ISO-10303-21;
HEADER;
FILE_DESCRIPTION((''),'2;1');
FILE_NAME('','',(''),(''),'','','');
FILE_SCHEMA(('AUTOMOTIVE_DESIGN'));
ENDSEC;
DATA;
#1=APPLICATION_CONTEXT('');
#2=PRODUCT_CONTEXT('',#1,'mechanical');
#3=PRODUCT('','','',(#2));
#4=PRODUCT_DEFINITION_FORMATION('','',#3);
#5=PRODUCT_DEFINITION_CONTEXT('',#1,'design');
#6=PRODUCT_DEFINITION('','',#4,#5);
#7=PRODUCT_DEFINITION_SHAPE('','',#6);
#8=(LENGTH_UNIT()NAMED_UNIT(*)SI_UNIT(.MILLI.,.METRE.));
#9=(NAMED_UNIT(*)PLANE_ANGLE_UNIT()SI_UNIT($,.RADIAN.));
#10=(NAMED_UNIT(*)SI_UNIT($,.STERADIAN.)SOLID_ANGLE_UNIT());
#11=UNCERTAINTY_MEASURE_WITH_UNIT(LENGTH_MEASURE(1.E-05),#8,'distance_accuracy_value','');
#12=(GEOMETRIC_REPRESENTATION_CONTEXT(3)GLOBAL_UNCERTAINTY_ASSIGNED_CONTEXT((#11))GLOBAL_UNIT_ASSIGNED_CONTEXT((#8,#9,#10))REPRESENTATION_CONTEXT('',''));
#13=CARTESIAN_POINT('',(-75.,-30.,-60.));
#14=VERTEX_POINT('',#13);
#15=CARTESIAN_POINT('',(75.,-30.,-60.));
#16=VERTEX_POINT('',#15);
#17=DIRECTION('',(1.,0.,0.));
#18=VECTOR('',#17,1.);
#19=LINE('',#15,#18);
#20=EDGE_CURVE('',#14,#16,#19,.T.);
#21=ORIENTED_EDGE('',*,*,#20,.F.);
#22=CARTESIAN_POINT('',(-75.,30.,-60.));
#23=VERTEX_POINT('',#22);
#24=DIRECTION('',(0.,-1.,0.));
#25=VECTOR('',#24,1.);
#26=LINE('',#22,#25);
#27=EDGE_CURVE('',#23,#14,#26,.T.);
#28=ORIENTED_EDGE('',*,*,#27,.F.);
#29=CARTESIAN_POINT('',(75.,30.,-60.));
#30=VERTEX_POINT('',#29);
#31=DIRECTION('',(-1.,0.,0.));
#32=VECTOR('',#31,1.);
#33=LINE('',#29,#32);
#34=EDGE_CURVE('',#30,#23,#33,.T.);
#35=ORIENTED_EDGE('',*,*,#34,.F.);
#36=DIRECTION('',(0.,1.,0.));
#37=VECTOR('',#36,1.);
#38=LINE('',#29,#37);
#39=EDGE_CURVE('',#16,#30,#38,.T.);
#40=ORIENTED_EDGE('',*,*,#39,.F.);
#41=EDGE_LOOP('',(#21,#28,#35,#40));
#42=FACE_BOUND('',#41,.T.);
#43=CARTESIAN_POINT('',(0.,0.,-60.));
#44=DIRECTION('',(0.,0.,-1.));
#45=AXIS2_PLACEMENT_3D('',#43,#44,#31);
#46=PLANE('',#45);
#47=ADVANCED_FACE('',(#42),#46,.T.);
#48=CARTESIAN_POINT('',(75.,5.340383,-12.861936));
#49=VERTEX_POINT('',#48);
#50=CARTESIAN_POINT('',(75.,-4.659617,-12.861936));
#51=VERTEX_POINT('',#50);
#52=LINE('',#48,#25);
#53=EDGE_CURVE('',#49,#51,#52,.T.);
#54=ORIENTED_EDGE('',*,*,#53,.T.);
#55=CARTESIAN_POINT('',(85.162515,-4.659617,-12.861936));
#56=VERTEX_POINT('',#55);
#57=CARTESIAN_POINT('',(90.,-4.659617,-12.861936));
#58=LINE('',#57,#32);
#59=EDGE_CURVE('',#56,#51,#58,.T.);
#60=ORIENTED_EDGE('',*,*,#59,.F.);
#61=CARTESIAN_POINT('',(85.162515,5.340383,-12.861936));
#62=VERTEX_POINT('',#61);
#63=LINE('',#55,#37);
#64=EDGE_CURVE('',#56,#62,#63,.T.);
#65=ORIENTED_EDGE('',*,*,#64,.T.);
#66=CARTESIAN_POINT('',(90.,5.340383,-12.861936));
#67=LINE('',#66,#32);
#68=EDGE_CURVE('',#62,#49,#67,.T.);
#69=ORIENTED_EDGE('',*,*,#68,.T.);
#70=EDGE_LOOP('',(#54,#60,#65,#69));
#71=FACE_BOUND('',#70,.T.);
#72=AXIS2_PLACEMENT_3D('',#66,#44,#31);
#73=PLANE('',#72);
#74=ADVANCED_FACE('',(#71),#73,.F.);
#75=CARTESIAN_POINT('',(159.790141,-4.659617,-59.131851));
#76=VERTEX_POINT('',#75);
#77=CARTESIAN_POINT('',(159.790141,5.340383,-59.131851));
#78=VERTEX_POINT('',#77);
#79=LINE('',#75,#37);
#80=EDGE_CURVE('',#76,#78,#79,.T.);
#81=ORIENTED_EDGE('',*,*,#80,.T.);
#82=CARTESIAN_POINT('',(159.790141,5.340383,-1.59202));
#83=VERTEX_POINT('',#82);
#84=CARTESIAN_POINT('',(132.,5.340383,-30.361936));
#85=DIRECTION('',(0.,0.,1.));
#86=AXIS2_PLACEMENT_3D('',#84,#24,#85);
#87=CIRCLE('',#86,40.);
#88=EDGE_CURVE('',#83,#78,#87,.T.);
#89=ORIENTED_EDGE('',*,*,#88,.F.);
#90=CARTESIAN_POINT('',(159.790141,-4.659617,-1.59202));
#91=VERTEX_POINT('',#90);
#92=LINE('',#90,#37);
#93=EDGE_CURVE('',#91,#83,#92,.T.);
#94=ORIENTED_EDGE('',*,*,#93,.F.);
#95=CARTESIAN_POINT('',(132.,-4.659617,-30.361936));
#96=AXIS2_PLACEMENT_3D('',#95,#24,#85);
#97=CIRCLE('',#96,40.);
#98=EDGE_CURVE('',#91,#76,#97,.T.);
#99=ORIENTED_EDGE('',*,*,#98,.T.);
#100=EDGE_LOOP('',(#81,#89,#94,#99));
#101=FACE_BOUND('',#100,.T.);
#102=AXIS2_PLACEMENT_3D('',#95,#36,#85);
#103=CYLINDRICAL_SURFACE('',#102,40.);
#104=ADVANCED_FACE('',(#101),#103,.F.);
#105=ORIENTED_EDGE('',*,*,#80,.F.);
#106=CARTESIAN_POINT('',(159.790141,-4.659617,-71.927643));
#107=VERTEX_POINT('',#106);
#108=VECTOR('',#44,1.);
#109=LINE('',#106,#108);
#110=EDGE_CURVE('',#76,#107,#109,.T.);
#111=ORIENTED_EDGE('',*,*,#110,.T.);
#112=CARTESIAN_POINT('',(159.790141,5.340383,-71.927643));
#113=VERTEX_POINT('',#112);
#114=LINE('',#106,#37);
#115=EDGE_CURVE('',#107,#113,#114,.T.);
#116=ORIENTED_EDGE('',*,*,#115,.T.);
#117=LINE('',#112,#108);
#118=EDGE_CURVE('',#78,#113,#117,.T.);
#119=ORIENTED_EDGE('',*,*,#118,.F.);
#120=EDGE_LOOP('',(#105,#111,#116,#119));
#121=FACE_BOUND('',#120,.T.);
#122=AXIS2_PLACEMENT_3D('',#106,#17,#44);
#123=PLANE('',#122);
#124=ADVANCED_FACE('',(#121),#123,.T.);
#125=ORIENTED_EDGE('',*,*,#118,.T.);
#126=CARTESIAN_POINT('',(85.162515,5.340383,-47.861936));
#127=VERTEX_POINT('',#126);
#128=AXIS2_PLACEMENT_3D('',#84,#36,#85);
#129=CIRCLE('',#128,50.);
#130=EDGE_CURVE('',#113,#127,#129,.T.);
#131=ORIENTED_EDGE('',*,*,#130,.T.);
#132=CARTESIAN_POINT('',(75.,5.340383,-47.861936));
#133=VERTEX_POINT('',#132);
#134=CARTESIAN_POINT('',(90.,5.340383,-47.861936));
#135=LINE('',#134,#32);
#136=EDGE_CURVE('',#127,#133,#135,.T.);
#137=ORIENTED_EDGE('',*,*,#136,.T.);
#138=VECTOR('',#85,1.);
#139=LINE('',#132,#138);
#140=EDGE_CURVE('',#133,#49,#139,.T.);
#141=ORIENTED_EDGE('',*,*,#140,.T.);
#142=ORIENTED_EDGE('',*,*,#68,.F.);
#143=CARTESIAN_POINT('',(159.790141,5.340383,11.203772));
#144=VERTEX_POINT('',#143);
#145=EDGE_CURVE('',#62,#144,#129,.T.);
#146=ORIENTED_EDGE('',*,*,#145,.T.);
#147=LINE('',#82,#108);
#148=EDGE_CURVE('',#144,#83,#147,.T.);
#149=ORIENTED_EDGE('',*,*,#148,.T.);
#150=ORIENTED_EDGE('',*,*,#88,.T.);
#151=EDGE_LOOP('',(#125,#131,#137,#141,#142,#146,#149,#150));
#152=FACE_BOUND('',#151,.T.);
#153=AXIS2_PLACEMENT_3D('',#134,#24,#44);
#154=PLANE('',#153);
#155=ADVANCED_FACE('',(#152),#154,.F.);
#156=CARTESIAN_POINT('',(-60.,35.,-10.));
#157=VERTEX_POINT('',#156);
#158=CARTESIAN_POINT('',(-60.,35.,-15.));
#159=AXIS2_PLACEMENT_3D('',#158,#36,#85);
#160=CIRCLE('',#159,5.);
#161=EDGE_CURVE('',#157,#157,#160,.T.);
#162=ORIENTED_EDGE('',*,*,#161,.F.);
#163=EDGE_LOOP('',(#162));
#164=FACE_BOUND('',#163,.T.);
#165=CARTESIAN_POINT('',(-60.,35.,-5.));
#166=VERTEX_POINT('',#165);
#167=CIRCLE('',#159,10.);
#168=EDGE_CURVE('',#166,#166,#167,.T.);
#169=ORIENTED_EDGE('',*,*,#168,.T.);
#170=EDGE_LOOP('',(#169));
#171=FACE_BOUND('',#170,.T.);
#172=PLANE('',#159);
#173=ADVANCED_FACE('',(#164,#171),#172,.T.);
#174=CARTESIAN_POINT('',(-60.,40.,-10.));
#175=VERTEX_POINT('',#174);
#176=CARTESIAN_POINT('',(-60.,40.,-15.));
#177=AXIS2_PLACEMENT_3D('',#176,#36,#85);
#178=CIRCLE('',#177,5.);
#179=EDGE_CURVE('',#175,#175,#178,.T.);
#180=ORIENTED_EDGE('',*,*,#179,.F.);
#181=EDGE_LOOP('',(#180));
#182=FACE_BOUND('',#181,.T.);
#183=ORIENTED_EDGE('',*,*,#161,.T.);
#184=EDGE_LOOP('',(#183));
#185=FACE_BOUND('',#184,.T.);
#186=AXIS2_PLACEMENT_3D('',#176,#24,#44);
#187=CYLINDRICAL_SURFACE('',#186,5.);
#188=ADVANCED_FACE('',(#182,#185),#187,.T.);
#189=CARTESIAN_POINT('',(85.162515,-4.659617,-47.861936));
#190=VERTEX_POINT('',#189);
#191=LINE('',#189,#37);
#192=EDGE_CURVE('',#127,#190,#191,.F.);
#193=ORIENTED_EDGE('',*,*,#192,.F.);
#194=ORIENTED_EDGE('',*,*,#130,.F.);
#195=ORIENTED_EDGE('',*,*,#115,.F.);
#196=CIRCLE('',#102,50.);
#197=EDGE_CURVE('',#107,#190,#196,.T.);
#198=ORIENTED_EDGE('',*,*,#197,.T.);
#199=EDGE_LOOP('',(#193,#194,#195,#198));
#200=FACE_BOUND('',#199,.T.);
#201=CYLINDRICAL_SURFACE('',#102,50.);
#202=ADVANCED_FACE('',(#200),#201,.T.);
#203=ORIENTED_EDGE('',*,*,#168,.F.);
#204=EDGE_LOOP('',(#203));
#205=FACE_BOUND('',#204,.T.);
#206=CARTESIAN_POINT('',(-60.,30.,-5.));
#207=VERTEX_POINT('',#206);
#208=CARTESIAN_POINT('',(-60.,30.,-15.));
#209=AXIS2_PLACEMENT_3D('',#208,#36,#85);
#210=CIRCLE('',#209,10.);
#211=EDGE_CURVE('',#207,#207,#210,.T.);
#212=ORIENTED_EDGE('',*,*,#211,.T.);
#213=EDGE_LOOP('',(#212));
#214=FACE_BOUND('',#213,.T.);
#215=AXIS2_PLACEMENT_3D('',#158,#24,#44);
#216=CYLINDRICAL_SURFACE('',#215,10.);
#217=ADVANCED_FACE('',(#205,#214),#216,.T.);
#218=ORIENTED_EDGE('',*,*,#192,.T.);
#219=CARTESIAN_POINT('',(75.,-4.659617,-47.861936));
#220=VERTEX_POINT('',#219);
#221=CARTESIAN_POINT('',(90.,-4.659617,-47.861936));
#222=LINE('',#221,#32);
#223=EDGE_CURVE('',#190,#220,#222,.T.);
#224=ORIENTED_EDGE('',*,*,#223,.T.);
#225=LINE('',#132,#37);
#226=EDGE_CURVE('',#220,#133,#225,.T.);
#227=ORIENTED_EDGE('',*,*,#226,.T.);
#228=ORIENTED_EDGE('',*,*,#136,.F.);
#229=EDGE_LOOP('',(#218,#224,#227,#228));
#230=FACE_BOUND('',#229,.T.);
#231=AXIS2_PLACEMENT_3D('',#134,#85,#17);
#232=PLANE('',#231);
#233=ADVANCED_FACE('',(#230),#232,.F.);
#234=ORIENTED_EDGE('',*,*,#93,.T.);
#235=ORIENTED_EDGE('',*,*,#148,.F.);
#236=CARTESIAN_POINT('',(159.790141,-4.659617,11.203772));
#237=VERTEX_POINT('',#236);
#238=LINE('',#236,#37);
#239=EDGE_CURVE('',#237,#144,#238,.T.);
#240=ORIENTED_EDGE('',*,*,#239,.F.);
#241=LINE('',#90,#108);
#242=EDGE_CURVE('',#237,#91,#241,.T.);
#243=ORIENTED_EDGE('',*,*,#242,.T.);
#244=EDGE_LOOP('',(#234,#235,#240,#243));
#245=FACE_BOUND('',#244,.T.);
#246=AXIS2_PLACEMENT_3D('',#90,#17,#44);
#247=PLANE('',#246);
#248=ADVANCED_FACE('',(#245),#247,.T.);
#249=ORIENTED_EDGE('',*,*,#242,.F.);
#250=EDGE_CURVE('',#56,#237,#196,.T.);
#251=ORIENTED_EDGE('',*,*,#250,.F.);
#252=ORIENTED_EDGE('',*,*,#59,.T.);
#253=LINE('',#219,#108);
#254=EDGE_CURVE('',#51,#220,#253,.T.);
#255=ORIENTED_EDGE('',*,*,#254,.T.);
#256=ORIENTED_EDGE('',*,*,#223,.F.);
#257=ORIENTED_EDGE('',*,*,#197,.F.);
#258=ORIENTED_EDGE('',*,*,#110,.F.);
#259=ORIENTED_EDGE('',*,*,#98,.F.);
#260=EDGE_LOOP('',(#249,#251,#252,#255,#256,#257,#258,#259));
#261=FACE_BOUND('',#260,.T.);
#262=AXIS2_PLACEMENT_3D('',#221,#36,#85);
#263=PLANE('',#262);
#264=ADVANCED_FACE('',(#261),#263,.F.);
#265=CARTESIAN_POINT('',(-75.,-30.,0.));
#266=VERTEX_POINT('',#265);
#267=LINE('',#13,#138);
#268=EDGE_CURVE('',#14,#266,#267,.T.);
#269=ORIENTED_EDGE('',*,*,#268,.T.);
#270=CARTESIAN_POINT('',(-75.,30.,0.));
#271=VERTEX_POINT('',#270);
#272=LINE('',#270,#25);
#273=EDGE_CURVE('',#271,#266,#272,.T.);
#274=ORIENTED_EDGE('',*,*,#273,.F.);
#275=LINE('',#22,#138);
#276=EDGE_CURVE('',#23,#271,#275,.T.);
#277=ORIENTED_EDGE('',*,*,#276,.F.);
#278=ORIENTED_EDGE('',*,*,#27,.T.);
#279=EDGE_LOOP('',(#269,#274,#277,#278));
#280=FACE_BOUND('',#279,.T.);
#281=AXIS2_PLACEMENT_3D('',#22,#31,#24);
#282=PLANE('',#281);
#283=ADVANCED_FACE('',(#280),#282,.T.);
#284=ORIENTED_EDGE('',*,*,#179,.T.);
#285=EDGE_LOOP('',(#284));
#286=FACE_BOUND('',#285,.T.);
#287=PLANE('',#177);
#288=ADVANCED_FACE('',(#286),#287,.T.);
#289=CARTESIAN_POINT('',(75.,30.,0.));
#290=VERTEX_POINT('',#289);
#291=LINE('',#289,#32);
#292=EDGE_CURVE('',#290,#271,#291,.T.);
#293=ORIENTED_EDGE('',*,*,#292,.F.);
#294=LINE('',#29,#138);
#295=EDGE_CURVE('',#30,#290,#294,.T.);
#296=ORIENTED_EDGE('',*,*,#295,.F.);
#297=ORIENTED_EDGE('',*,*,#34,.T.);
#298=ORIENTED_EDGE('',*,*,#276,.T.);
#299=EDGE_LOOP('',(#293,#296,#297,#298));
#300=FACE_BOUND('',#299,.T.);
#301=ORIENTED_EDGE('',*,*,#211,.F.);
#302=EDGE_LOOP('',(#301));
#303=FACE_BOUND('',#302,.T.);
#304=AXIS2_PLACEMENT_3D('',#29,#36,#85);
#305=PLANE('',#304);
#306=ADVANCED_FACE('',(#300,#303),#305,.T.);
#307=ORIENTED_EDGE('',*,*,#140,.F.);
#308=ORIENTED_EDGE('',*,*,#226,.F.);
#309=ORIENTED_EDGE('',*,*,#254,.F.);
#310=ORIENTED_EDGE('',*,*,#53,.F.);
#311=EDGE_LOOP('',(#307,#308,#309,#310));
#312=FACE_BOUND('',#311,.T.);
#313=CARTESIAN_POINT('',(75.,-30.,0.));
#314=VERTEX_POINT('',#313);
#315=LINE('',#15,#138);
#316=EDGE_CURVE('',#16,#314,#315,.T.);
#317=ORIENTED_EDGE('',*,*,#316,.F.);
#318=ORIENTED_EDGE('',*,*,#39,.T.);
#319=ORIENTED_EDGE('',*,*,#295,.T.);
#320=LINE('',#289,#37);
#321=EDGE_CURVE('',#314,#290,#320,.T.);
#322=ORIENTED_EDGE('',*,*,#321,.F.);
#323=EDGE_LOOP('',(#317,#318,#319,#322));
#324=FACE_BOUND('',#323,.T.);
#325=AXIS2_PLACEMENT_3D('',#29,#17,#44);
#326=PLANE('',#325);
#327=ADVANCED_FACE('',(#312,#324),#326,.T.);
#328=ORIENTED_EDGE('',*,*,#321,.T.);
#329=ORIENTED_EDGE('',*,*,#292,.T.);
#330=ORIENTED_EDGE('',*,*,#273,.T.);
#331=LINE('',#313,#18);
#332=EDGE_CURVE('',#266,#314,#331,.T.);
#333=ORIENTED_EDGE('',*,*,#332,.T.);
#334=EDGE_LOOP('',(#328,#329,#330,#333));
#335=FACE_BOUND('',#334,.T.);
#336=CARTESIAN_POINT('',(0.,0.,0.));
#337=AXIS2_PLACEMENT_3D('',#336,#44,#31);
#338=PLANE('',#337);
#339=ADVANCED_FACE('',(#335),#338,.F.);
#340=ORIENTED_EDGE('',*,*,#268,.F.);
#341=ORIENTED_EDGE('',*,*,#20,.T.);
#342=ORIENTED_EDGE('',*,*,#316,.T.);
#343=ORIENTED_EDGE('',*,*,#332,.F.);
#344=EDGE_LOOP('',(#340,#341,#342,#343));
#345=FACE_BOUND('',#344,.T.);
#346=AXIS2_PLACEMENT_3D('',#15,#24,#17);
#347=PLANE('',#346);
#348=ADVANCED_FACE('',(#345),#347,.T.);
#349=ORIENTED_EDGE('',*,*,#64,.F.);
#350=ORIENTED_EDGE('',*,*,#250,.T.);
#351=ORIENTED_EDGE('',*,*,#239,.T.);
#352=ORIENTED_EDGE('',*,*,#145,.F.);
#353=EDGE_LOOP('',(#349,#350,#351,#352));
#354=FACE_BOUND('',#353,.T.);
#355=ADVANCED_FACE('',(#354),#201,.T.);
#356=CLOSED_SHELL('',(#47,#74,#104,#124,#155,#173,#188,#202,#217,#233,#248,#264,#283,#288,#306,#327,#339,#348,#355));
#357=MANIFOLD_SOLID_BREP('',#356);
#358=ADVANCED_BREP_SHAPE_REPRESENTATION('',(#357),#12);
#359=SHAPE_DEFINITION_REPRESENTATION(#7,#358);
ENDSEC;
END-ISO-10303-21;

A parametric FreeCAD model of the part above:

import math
import FreeCAD as App
import Part
import Sketcher
Q = App.Units.Quantity

doc = App.newDocument("Part")
body = doc.addObject("PartDesign::Body", "Body")

sketch1 = body.newObject("Sketcher::SketchObject", "Sketch")
sketch1.AttachmentSupport = (doc.getObject("XY_Plane"), [""])
sketch1.MapMode = "FlatFace"
sketch1.addGeometry([
    Part.LineSegment(App.Vector(-75, 30, 0), App.Vector(-75, -30, 0)),
    Part.LineSegment(App.Vector(-75, -30, 0), App.Vector(75, -30, 0)),
    Part.LineSegment(App.Vector(75, -30, 0), App.Vector(75, 30, 0)),
    Part.LineSegment(App.Vector(75, 30, 0), App.Vector(-75, 30, 0)),
], False)
sketch1.addConstraint([
    Sketcher.Constraint("Coincident", 0, 2, 1, 1),
    Sketcher.Constraint("Coincident", 1, 2, 2, 1),
    Sketcher.Constraint("Coincident", 2, 2, 3, 1),
    Sketcher.Constraint("Coincident", 3, 2, 0, 1),
    Sketcher.Constraint("Vertical", 0),
    Sketcher.Constraint("Horizontal", 1),
    Sketcher.Constraint("Vertical", 2),
    Sketcher.Constraint("Horizontal", 3),
    Sketcher.Constraint("Symmetric", 0, 2, 2, 2, -1, 1),
    Sketcher.Constraint("DistanceX", 1, 1, 1, 2, Q("150 mm")),
    Sketcher.Constraint("DistanceY", 0, 2, 0, 1, Q("60 mm")),
])
pad1 = body.newObject("PartDesign::Pad", "Pad")
pad1.Profile = sketch1
pad1.Length = 60
pad1.Reversed = True

sketch2 = body.newObject("Sketcher::SketchObject", "Sketch001")
sketch2.AttachmentSupport = (doc.getObject("XZ_Plane"), [""])
sketch2.MapMode = "FlatFace"
sketch2.AttachmentOffset = App.Placement(App.Vector(0, 0, -30), App.Rotation())
sketch2.addGeometry(Part.Circle(App.Vector(-60, -15, 0), App.Vector(0, 0, 1), 10), False)
sketch2.addConstraint([
    Sketcher.Constraint("Diameter", 0, Q("20 mm")),
    Sketcher.Constraint("DistanceX", 0, 3, -1, 1, Q("60 mm")),
    Sketcher.Constraint("DistanceY", 0, 3, -1, 1, Q("15 mm")),
])
pad2 = body.newObject("PartDesign::Pad", "Pad001")
pad2.Profile = sketch2
pad2.Length = 5
pad2.Reversed = True

sketch3 = body.newObject("Sketcher::SketchObject", "Sketch002")
sketch3.AttachmentSupport = (doc.getObject("XZ_Plane"), [""])
sketch3.MapMode = "FlatFace"
sketch3.AttachmentOffset = App.Placement(App.Vector(0, 0, -35), App.Rotation())
sketch3.addGeometry(Part.Circle(App.Vector(-60, -15, 0), App.Vector(0, 0, 1), 5), False)
sketch3.addConstraint([
    Sketcher.Constraint("Diameter", 0, Q("10 mm")),
    Sketcher.Constraint("DistanceX", 0, 3, -1, 1, Q("60 mm")),
    Sketcher.Constraint("DistanceY", 0, 3, -1, 1, Q("15 mm")),
])
pad3 = body.newObject("PartDesign::Pad", "Pad002")
pad3.Profile = sketch3
pad3.Length = 5
pad3.Reversed = True

sketch4 = body.newObject("Sketcher::SketchObject", "Sketch003")
sketch4.AttachmentSupport = (doc.getObject("YZ_Plane"), [""])
sketch4.MapMode = "FlatFace"
sketch4.AttachmentOffset = App.Placement(App.Vector(0, 0, 75), App.Rotation())
sketch4.addGeometry([
    Part.LineSegment(App.Vector(5, -13, 0), App.Vector(-5, -13, 0)),
    Part.LineSegment(App.Vector(-5, -13, 0), App.Vector(-5, -48, 0)),
    Part.LineSegment(App.Vector(-5, -48, 0), App.Vector(5, -48, 0)),
    Part.LineSegment(App.Vector(5, -48, 0), App.Vector(5, -13, 0)),
], False)
sketch4.addConstraint([
    Sketcher.Constraint("Coincident", 0, 2, 1, 1),
    Sketcher.Constraint("Coincident", 1, 2, 2, 1),
    Sketcher.Constraint("Coincident", 2, 2, 3, 1),
    Sketcher.Constraint("Coincident", 3, 2, 0, 1),
    Sketcher.Constraint("Horizontal", 0),
    Sketcher.Constraint("Vertical", 1),
    Sketcher.Constraint("Horizontal", 2),
    Sketcher.Constraint("Vertical", 3),
    Sketcher.Constraint("DistanceX", 0, 2, 0, 1, Q("10 mm")),
    Sketcher.Constraint("DistanceY", 1, 2, 1, 1, Q("35 mm")),
    Sketcher.Constraint("DistanceX", 0, 2, -1, 1, Q("4.659617 mm")),
    Sketcher.Constraint("DistanceY", 0, 2, -1, 1, Q("12.861936 mm")),
])
pad4 = body.newObject("PartDesign::Pad", "Pad003")
pad4.Profile = sketch4
pad4.Length = 15

sketch5 = body.newObject("Sketcher::SketchObject", "Sketch004")
sketch5.AttachmentSupport = (doc.getObject("XZ_Plane"), [""])
sketch5.MapMode = "FlatFace"
sketch5.AttachmentOffset = App.Placement(App.Vector(0, 0, -5.340383), App.Rotation())
sketch5.addGeometry([
    Part.LineSegment(App.Vector(160, 11, 0), App.Vector(160, -2, 0)),
    Part.ArcOfCircle(Part.Circle(App.Vector(132, -30, 0), App.Vector(0, 0, 1), 40), math.radians(46), math.radians(314)),
    Part.LineSegment(App.Vector(160, -59, 0), App.Vector(160, -72, 0)),
    Part.ArcOfCircle(Part.Circle(App.Vector(132, -30, 0), App.Vector(0, 0, 1), 50), math.radians(56), math.radians(304)),
], False)
sketch5.addConstraint([
    Sketcher.Constraint("Coincident", 0, 2, 1, 1),
    Sketcher.Constraint("Coincident", 1, 2, 2, 1),
    Sketcher.Constraint("Coincident", 2, 2, 3, 2),
    Sketcher.Constraint("Coincident", 3, 1, 0, 1),
    Sketcher.Constraint("Vertical", 0),
    Sketcher.Constraint("Vertical", 2),
    Sketcher.Constraint("Coincident", 3, 3, 1, 3),
    Sketcher.Constraint("Vertical", 0, 2, 1, 2),
    Sketcher.Constraint("Radius", 1, Q("40 mm")),
    Sketcher.Constraint("Radius", 3, Q("50 mm")),
    Sketcher.Constraint("DistanceX", -1, 1, 1, 3, Q("132 mm")),
    Sketcher.Constraint("DistanceY", 0, 2, 0, 1, Q("12.795792 mm")),
    Sketcher.Constraint("DistanceY", 0, 2, -1, 1, Q("1.59202 mm")),
])
pad5 = body.newObject("PartDesign::Pad", "Pad004")
pad5.Profile = sketch5
pad5.Length = 10

doc.recompute()
